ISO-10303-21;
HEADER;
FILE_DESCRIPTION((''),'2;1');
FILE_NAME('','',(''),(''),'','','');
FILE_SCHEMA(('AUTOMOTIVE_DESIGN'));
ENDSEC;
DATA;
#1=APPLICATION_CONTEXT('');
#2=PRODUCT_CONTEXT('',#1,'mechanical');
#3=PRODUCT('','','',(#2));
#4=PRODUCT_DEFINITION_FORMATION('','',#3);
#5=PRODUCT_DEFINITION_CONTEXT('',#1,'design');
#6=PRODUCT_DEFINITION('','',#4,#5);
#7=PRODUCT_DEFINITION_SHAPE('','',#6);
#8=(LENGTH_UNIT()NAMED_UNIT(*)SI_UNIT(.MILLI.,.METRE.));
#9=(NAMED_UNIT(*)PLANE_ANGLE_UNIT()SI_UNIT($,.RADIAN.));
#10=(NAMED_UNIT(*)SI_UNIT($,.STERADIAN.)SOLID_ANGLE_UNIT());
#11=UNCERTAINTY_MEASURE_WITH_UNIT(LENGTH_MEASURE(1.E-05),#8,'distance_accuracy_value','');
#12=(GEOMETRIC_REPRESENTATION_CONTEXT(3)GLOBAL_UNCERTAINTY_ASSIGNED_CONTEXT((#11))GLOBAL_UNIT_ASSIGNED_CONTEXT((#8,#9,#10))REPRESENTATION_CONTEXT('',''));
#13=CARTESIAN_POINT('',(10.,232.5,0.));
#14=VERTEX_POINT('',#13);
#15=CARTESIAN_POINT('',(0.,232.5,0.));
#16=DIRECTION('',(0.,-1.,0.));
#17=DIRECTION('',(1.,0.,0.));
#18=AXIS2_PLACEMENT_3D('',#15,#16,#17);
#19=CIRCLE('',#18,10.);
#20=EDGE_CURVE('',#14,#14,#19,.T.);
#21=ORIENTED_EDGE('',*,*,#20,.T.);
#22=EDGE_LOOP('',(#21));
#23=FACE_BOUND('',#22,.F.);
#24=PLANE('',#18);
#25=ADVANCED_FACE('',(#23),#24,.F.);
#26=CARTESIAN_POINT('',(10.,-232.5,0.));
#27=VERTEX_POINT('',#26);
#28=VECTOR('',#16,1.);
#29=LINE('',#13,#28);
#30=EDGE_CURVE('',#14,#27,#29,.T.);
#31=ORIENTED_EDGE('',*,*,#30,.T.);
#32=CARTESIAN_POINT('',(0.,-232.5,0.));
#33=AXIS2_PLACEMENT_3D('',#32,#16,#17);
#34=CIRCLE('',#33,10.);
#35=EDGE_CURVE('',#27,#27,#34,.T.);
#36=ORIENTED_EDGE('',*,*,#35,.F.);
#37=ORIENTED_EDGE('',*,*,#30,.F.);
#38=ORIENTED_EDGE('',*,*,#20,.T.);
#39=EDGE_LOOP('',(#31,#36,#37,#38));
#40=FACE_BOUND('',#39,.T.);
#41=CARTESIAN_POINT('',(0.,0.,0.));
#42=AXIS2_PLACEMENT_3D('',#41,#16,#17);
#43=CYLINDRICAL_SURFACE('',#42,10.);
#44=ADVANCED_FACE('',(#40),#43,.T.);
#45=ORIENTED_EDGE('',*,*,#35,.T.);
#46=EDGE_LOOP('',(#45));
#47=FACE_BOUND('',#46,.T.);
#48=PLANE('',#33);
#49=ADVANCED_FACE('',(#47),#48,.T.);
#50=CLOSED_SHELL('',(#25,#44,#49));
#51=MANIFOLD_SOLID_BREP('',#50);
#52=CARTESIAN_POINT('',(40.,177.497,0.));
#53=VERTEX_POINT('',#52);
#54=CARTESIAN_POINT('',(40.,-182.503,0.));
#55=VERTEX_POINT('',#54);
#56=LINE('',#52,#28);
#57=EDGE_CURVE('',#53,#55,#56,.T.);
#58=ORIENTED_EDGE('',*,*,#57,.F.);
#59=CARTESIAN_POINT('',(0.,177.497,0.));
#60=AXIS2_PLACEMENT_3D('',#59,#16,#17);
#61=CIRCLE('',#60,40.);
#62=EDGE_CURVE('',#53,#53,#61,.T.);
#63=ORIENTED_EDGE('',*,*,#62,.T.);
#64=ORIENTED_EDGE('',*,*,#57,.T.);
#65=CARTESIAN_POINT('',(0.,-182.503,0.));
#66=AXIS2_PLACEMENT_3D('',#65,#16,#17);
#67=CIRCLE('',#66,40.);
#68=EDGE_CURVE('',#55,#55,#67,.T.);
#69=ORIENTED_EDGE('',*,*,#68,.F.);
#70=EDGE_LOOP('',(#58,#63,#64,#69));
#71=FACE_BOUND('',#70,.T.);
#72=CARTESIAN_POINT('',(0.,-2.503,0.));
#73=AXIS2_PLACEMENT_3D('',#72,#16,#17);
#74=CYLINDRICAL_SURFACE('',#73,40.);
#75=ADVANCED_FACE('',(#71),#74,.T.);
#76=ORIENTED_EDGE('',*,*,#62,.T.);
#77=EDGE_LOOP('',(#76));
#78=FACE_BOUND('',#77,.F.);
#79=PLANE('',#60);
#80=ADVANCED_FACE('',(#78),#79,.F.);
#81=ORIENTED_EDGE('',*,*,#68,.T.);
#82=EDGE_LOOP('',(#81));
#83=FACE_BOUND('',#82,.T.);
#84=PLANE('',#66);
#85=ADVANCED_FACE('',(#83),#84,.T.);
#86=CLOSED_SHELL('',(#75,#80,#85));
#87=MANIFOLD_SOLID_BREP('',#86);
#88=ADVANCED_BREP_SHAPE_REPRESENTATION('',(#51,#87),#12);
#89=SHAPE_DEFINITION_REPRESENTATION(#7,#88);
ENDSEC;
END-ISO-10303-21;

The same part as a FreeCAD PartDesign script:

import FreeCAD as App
import Part
import Sketcher
Q = App.Units.Quantity

doc = App.newDocument("Part")
body = doc.addObject("PartDesign::Body", "Body")

# Sketch on XZ plane
sketch1 = body.newObject("Sketcher::SketchObject", "Sketch")
sketch1.AttachmentSupport = (doc.getObject("XZ_Plane"), [""])
sketch1.MapMode = "FlatFace"
sketch1.addGeometry(Part.Circle(App.Vector(0, 0, 0), App.Vector(0, 0, 1), 10), False)
sketch1.addConstraint(Sketcher.Constraint("Coincident", 0, 3, -1, 1))
sketch1.addConstraint(Sketcher.Constraint("Diameter", 0, Q("20 mm")))
pad1 = body.newObject("PartDesign::Pad", "Pad")
pad1.Profile = sketch1
pad1.Length = 465
pad1.Midplane = True
body2 = doc.addObject("PartDesign::Body", "Body001")

# Sketch on XZ plane
sketch2 = body2.newObject("Sketcher::SketchObject", "Sketch001")
sketch2.AttachmentSupport = (doc.getObject("XZ_Plane001"), [""])
sketch2.MapMode = "FlatFace"
sketch2.AttachmentOffset = App.Placement(App.Vector(0, 0, 2.503), App.Rotation())
sketch2.addGeometry(Part.Circle(App.Vector(0, 0, 0), App.Vector(0, 0, 1), 40), False)
sketch2.addConstraint(Sketcher.Constraint("Coincident", 0, 3, -1, 1))
sketch2.addConstraint(Sketcher.Constraint("Diameter", 0, Q("80 mm")))
pad2 = body2.newObject("PartDesign::Pad", "Pad001")
pad2.Profile = sketch2
pad2.Length = 360
pad2.Midplane = True

doc.recompute()
